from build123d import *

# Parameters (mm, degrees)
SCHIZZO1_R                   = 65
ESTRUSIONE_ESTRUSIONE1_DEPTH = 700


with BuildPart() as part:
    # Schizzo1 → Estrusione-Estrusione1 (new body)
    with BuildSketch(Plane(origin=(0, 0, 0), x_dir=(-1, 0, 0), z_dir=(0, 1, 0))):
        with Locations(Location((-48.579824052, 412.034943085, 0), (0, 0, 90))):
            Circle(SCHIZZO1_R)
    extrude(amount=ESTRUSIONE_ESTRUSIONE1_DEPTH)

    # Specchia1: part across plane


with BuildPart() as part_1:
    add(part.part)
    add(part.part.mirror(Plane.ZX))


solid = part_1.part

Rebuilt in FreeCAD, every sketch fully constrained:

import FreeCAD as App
import Part
import Sketcher
Q = App.Units.Quantity

doc = App.newDocument("Part")
body = doc.addObject("PartDesign::Body", "Body")

# Sketch on XZ plane
sketch1 = body.newObject("Sketcher::SketchObject", "Sketch")
sketch1.AttachmentSupport = (doc.getObject("XZ_Plane"), [""])
sketch1.MapMode = "FlatFace"
sketch1.addGeometry(Part.Circle(App.Vector(49, 412, 0), App.Vector(0, 0, 1), 65), False)
sketch1.addConstraint([
    Sketcher.Constraint("Diameter", 0, Q("130 mm")),
    Sketcher.Constraint("DistanceX", -1, 1, 0, 3, Q("48.579824 mm")),
    Sketcher.Constraint("DistanceY", -1, 1, 0, 3, Q("412.034943 mm")),
])
pad1 = body.newObject("PartDesign::Pad", "Pad")
pad1.Profile = sketch1
pad1.Length = 700
pad1.Reversed = True
body2 = doc.addObject("PartDesign::Body", "Body001")
doc.recompute()

body2.BaseFeature = body
doc.recompute()

mirroring = doc.addObject("Part::Mirroring", "Mirroring")
mirroring.Source = body
mirroring.Base = App.Vector(0, 0, 0)
mirroring.Normal = App.Vector(0, 1, 0)
body3 = doc.addObject("PartDesign::Body", "Body002")
body3.BaseFeature = mirroring
boolean = body2.newObject("PartDesign::Boolean", "Boolean")
boolean.Type = "Fuse"
boolean.addObjects([body3])
doc.recompute()
mirroring.Visibility = False

doc.recompute()
